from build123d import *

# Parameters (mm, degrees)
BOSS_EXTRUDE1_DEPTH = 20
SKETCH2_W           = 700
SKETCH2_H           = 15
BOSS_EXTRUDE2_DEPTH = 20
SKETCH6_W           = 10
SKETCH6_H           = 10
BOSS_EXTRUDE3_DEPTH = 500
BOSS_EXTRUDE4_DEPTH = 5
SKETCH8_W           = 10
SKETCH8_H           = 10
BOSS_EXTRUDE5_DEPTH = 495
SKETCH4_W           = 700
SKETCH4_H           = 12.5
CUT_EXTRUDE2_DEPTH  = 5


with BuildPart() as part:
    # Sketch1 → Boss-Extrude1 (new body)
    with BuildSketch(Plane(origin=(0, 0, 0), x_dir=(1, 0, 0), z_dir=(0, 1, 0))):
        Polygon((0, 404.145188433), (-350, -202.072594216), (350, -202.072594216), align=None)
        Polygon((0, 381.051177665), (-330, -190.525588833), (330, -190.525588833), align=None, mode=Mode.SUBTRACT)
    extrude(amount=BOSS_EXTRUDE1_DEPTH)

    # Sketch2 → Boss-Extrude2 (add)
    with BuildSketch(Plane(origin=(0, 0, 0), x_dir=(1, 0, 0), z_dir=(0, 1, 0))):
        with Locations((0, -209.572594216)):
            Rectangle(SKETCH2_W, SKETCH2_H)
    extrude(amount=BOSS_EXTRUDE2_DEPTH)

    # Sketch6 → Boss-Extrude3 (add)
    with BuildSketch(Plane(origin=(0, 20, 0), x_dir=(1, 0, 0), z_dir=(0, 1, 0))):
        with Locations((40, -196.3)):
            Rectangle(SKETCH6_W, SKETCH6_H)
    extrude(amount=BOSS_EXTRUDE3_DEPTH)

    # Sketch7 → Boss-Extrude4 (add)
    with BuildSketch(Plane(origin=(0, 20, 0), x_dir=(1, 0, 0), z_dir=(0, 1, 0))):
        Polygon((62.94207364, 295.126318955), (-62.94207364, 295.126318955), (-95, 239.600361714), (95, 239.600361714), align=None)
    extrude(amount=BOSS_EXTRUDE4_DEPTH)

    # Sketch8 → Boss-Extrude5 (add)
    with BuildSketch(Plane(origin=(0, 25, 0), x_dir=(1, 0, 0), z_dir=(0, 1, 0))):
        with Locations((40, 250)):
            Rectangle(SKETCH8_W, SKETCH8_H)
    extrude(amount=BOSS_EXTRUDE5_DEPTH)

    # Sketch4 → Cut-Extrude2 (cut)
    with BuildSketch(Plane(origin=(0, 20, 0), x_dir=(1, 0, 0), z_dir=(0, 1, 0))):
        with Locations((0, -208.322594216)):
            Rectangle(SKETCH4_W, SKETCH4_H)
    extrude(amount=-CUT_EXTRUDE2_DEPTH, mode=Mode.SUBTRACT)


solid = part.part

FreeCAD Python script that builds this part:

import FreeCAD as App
import Part
import Sketcher

V = App.Vector
Q = App.Units.Quantity


def add_polygon(sketch, points):
    """Adds a closed chain of lines whose ends are joined by coincident constraints."""
    first, n = sketch.GeometryCount, len(points)
    for a, b in zip(points, points[1:] + points[:1]):
        sketch.addGeometry(Part.LineSegment(App.Vector(*a, 0), App.Vector(*b, 0)), False)
    for i in range(n):
        sketch.addConstraint(Sketcher.Constraint("Coincident", first + i, 2, first + (i + 1) % n, 1))

doc = App.newDocument("Part")
body = doc.addObject("PartDesign::Body", "Body")

# Sketch on XZ plane
sketch1 = body.newObject("Sketcher::SketchObject", "Sketch")
sketch1.AttachmentSupport = (doc.getObject("XZ_Plane"), [""])
sketch1.MapMode = "FlatFace"
add_polygon(sketch1, [(0, -404), (-350, 202), (350, 202)])  # lines 0-2
add_polygon(sketch1, [(-330, 191), (0, -381), (330, 191)])  # lines 3-5
sketch1.addConstraint(Sketcher.Constraint("Horizontal", 1))
sketch1.addConstraint(Sketcher.Constraint("Horizontal", 5))
sketch1.addConstraint(Sketcher.Constraint("PointOnObject", 2, 2, -2))
sketch1.addConstraint(Sketcher.Constraint("PointOnObject", 3, 2, -2))
sketch1.addConstraint(Sketcher.Constraint("Parallel", 0, 3))
sketch1.addConstraint(Sketcher.Constraint("Parallel", 2, 4))
sketch1.addConstraint(Sketcher.Constraint("Equal", 0, 2))
sketch1.addConstraint(Sketcher.Constraint("DistanceX", 1, 1, 1, 2, Q("700 mm")))
sketch1.addConstraint(Sketcher.Constraint("DistanceX", 5, 2, 5, 1, Q("660 mm")))
sketch1.addConstraint(Sketcher.Constraint("Angle", 0, Q("120 deg")))
sketch1.addConstraint(Sketcher.Constraint("DistanceY", 2, 2, -1, 1, Q("404.145188 mm")))
sketch1.addConstraint(Sketcher.Constraint("DistanceY", -1, 1, 4, 2, Q("190.525589 mm")))
pad1 = body.newObject("PartDesign::Pad", "Pad")
pad1.Profile = sketch1
pad1.Length = 20
pad1.Reversed = True

# Sketch on XZ plane
sketch2 = body.newObject("Sketcher::SketchObject", "Sketch001")
sketch2.AttachmentSupport = (doc.getObject("XZ_Plane"), [""])
sketch2.MapMode = "FlatFace"
add_polygon(sketch2, [(-350, 202), (-350, 217), (350, 217), (350, 202)])  # lines 0-3
sketch2.addConstraint(Sketcher.Constraint("Vertical", 0))
sketch2.addConstraint(Sketcher.Constraint("Horizontal", 1))
sketch2.addConstraint(Sketcher.Constraint("Vertical", 2))
sketch2.addConstraint(Sketcher.Constraint("Horizontal", 3))
sketch2.addConstraint(Sketcher.Constraint("DistanceX", 1, 1, 1, 2, Q("700 mm")))
sketch2.addConstraint(Sketcher.Constraint("DistanceY", 0, 1, 0, 2, Q("15 mm")))
sketch2.addConstraint(Sketcher.Constraint("DistanceX", 0, 2, -1, 1, Q("350 mm")))
sketch2.addConstraint(Sketcher.Constraint("DistanceY", -1, 1, 0, 2, Q("217.072594 mm")))
pad2 = body.newObject("PartDesign::Pad", "Pad001")
pad2.Profile = sketch2
pad2.Length = 20
pad2.Reversed = True

# Sketch on XZ plane
sketch3 = body.newObject("Sketcher::SketchObject", "Sketch002")
sketch3.AttachmentSupport = (doc.getObject("XZ_Plane"), [""])
sketch3.MapMode = "FlatFace"
sketch3.AttachmentOffset = App.Placement(V(0, 0, -20), App.Rotation())
add_polygon(sketch3, [(35, 191), (35, 201), (45, 201), (45, 191)])  # lines 0-3
sketch3.addConstraint(Sketcher.Constraint("Vertical", 0))
sketch3.addConstraint(Sketcher.Constraint("Horizontal", 1))
sketch3.addConstraint(Sketcher.Constraint("Vertical", 2))
sketch3.addConstraint(Sketcher.Constraint("Horizontal", 3))
sketch3.addConstraint(Sketcher.Constraint("Equal", 3, 0))
sketch3.addConstraint(Sketcher.Constraint("DistanceX", 1, 1, 1, 2, Q("10 mm")))
sketch3.addConstraint(Sketcher.Constraint("DistanceX", -1, 1, 0, 2, Q("35 mm")))
sketch3.addConstraint(Sketcher.Constraint("DistanceY", -1, 1, 0, 2, Q("201.3 mm")))
pad3 = body.newObject("PartDesign::Pad", "Pad002")
pad3.Profile = sketch3
pad3.Length = 500
pad3.Reversed = True

# Sketch on XZ plane
sketch4 = body.newObject("Sketcher::SketchObject", "Sketch003")
sketch4.AttachmentSupport = (doc.getObject("XZ_Plane"), [""])
sketch4.MapMode = "FlatFace"
sketch4.AttachmentOffset = App.Placement(V(0, 0, -20), App.Rotation())
add_polygon(sketch4, [(63, -295), (-63, -295), (-95, -240), (95, -240)])  # lines 0-3
sketch4.addConstraint(Sketcher.Constraint("Horizontal", 0))
sketch4.addConstraint(Sketcher.Constraint("Horizontal", 2))
sketch4.addConstraint(Sketcher.Constraint("Equal", 1, 3))
sketch4.addConstraint(Sketcher.Constraint("DistanceX", 2, 1, 2, 2, Q("190 mm")))
sketch4.addConstraint(Sketcher.Constraint("Angle", 1, Q("120 deg")))
sketch4.addConstraint(Sketcher.Constraint("DistanceX", 1, 2, -1, 1, Q("95 mm")))
sketch4.addConstraint(Sketcher.Constraint("DistanceX", 0, 2, 0, 1, Q("125.884147 mm")))
sketch4.addConstraint(Sketcher.Constraint("DistanceY", 0, 2, -1, 1, Q("295.126319 mm")))
pad4 = body.newObject("PartDesign::Pad", "Pad003")
pad4.Profile = sketch4
pad4.Length = 5
pad4.Reversed = True

# Sketch on XZ plane
sketch5 = body.newObject("Sketcher::SketchObject", "Sketch004")
sketch5.AttachmentSupport = (doc.getObject("XZ_Plane"), [""])
sketch5.MapMode = "FlatFace"
sketch5.AttachmentOffset = App.Placement(V(0, 0, -25), App.Rotation())
add_polygon(sketch5, [(35, -255), (35, -245), (45, -245), (45, -255)])  # lines 0-3
sketch5.addConstraint(Sketcher.Constraint("Vertical", 0))
sketch5.addConstraint(Sketcher.Constraint("Horizontal", 1))
sketch5.addConstraint(Sketcher.Constraint("Vertical", 2))
sketch5.addConstraint(Sketcher.Constraint("Horizontal", 3))
sketch5.addConstraint(Sketcher.Constraint("Equal", 3, 0))
sketch5.addConstraint(Sketcher.Constraint("DistanceX", 1, 1, 1, 2, Q("10 mm")))
sketch5.addConstraint(Sketcher.Constraint("DistanceX", -1, 1, 0, 2, Q("35 mm")))
sketch5.addConstraint(Sketcher.Constraint("DistanceY", 0, 2, -1, 1, Q("245 mm")))
pad5 = body.newObject("PartDesign::Pad", "Pad004")
pad5.Profile = sketch5
pad5.Length = 495
pad5.Reversed = True

# Sketch on XZ plane
sketch6 = body.newObject("Sketcher::SketchObject", "Sketch005")
sketch6.AttachmentSupport = (doc.getObject("XZ_Plane"), [""])
sketch6.MapMode = "FlatFace"
sketch6.AttachmentOffset = App.Placement(V(0, 0, -20), App.Rotation())
add_polygon(sketch6, [(-350, 202), (-350, 215), (350, 215), (350, 202)])  # lines 0-3
sketch6.addConstraint(Sketcher.Constraint("Vertical", 0))
sketch6.addConstraint(Sketcher.Constraint("Horizontal", 1))
sketch6.addConstraint(Sketcher.Constraint("Vertical", 2))
sketch6.addConstraint(Sketcher.Constraint("Horizontal", 3))
sketch6.addConstraint(Sketcher.Constraint("DistanceX", 1, 1, 1, 2, Q("700 mm")))
sketch6.addConstraint(Sketcher.Constraint("DistanceY", 0, 1, 0, 2, Q("12.5 mm")))
sketch6.addConstraint(Sketcher.Constraint("DistanceX", 0, 2, -1, 1, Q("350 mm")))
sketch6.addConstraint(Sketcher.Constraint("DistanceY", -1, 1, 0, 2, Q("214.572594 mm")))
pocket1 = body.newObject("PartDesign::Pocket", "Pocket")
pocket1.Profile = sketch6
pocket1.Length = 5
pocket1.Reversed = True

doc.recompute()
